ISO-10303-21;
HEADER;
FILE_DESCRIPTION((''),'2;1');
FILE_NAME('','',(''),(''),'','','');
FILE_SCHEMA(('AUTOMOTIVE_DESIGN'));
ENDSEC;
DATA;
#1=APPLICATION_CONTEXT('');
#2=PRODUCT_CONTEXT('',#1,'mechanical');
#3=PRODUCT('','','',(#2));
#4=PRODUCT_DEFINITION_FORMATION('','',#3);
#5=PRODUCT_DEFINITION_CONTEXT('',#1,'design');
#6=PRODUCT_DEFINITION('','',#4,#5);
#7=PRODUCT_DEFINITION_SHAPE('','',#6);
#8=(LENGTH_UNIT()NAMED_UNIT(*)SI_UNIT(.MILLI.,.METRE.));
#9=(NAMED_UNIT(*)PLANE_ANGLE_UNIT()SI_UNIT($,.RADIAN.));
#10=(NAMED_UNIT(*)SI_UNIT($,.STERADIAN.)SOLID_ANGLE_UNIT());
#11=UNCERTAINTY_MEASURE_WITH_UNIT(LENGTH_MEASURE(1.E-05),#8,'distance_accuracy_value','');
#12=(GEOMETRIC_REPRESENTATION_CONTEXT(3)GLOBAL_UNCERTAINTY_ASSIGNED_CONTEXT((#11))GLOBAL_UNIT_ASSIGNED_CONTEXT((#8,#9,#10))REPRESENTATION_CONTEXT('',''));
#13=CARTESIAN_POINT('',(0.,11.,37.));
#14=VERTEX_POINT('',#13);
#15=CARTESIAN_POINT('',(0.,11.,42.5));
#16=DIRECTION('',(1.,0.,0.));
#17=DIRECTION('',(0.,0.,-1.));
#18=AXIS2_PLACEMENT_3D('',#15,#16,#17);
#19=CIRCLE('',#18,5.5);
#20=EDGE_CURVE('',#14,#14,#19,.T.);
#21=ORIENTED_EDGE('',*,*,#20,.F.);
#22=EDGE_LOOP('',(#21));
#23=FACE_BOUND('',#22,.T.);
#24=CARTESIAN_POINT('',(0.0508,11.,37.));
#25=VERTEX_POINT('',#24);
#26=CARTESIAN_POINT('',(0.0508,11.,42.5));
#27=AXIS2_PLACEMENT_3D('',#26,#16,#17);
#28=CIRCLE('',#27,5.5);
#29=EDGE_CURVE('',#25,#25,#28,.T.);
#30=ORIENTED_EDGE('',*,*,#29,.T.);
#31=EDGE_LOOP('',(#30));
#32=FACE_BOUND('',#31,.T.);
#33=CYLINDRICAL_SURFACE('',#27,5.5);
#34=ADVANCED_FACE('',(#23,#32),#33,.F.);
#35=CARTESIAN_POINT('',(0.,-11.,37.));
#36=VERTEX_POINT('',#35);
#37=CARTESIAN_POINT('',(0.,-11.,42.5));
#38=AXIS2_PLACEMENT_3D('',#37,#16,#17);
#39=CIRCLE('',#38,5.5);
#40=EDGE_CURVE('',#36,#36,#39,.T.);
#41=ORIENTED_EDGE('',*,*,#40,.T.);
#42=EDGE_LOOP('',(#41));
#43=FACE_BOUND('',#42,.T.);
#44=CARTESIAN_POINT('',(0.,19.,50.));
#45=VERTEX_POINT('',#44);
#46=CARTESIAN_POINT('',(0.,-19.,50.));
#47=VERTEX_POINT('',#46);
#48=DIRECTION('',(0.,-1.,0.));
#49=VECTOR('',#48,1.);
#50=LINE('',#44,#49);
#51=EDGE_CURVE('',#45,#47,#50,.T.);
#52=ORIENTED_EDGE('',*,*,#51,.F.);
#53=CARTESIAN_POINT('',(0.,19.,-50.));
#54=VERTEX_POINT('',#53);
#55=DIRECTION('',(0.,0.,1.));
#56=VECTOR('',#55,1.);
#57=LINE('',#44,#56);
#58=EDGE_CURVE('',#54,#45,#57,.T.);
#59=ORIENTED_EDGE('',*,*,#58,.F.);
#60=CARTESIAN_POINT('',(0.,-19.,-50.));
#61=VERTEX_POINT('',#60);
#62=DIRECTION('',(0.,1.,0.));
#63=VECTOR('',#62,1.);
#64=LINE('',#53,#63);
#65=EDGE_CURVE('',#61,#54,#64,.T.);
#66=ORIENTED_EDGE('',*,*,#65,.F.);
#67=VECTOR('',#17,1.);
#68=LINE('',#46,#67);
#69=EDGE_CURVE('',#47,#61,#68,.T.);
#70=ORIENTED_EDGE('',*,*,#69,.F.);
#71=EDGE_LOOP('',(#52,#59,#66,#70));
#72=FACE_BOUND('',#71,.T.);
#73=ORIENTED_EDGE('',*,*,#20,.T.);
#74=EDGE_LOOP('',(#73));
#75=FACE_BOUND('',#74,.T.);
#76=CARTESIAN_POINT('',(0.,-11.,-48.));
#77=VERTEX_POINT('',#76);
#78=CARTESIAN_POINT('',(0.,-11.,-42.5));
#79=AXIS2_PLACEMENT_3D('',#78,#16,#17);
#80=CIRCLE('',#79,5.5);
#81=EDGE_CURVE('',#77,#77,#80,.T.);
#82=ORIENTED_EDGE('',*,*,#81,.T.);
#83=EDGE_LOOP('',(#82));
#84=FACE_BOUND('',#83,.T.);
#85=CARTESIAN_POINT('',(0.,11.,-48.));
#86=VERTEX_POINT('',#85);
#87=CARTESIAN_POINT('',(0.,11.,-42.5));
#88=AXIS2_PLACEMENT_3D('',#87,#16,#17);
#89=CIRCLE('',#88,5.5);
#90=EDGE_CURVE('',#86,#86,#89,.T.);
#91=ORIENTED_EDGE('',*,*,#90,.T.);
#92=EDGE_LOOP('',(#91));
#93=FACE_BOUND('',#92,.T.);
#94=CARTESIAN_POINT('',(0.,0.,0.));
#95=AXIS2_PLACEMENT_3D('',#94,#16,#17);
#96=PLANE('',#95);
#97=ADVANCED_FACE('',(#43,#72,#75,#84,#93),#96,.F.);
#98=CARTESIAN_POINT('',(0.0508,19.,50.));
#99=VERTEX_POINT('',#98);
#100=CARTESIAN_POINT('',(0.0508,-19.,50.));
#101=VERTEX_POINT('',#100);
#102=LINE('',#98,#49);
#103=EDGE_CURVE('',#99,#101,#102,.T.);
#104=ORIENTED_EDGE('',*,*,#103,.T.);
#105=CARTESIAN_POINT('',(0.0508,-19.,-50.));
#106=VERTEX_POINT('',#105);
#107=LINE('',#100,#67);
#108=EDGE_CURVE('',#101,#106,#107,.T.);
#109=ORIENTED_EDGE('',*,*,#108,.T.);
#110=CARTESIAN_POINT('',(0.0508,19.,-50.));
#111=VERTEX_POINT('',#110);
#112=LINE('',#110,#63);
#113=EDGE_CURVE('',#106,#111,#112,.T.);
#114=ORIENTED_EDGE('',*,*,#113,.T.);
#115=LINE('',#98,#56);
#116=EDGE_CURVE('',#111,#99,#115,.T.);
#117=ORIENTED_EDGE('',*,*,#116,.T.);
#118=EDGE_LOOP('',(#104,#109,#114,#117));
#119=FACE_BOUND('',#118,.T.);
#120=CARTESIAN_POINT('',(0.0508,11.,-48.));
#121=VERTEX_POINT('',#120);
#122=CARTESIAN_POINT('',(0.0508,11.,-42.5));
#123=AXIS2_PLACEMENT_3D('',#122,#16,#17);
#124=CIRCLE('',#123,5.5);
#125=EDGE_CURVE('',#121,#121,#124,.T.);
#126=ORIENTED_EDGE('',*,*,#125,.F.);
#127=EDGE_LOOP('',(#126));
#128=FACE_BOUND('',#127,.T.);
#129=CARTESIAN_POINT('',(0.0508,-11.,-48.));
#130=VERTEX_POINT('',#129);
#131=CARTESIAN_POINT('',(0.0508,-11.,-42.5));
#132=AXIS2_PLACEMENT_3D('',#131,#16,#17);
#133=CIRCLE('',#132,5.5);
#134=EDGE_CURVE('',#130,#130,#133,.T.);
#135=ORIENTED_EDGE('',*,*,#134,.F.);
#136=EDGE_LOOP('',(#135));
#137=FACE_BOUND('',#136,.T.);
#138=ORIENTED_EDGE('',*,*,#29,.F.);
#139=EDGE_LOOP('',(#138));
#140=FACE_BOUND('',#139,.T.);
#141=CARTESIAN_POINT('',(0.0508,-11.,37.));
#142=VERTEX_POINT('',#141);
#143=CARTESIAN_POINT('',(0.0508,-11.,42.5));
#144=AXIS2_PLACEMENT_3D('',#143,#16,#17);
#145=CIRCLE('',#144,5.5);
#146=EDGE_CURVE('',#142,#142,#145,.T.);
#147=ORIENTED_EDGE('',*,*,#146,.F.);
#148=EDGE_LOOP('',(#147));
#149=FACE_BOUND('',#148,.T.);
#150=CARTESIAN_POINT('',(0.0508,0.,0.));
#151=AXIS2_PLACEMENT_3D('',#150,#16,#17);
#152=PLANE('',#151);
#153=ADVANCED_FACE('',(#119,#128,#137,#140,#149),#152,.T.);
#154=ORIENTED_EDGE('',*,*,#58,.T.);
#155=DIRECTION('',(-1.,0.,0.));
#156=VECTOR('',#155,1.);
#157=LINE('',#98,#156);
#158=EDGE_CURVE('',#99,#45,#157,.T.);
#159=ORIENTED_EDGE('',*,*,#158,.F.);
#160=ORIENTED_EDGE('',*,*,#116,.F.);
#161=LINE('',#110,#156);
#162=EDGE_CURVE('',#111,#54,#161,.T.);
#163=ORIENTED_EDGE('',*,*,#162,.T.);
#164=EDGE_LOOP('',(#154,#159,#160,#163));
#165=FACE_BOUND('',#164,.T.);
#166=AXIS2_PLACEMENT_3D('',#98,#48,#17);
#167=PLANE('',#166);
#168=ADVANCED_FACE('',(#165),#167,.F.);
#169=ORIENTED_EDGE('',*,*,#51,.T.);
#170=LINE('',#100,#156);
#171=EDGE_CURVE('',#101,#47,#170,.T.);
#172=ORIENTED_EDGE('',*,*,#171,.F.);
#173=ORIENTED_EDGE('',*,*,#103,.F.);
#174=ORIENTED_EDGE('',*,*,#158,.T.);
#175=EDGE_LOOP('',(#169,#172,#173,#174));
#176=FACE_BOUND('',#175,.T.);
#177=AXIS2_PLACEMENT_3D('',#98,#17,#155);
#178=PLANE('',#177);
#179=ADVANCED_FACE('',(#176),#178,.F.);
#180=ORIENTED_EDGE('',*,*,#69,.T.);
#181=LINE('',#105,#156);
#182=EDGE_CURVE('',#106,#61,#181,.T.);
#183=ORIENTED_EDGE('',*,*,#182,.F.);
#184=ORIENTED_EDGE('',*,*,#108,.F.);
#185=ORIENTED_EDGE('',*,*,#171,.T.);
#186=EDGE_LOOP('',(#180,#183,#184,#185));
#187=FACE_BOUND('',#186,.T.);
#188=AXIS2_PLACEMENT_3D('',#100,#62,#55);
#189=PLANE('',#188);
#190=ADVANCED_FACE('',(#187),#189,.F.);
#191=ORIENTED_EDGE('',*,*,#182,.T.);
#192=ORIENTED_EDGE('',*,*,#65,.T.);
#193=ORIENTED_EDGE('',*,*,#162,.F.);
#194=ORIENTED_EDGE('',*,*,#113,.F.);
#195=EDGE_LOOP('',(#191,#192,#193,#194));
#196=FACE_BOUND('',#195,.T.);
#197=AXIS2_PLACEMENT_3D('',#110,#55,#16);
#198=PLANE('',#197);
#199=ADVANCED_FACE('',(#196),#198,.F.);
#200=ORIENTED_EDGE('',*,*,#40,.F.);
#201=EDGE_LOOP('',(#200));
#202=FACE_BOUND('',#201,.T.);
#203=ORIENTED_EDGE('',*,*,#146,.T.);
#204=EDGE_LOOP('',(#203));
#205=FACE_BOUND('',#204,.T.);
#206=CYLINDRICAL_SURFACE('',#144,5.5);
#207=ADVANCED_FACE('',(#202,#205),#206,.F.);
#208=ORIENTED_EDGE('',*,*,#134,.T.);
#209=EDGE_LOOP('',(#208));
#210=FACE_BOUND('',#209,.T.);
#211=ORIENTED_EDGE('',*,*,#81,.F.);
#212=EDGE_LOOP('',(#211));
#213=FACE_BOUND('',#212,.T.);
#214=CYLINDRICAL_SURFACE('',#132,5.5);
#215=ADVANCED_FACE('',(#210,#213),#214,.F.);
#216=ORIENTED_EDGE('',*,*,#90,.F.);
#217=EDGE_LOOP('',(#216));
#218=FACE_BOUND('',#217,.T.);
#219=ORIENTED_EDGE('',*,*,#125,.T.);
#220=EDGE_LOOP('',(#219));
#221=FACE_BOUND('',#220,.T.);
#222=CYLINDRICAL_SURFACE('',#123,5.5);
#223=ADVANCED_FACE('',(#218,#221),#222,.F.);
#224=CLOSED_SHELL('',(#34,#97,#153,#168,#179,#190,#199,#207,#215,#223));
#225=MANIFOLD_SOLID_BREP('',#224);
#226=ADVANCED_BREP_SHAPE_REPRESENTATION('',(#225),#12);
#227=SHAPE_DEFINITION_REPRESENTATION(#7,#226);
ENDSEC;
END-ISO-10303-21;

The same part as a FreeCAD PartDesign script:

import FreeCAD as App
import Part
import Sketcher

V = App.Vector


def add_polygon(sketch, points):
    """Adds a closed chain of lines whose ends are joined by coincident constraints."""
    first, n = sketch.GeometryCount, len(points)
    for a, b in zip(points, points[1:] + points[:1]):
        sketch.addGeometry(Part.LineSegment(App.Vector(*a, 0), App.Vector(*b, 0)), False)
    for i in range(n):
        sketch.addConstraint(Sketcher.Constraint("Coincident", first + i, 2, first + (i + 1) % n, 1))

doc = App.newDocument("Part")
params = doc.addObject("Spreadsheet::Sheet", "Params")
for row, (alias, value) in enumerate([
    ("sketch1_width", "38 mm"),
    ("sketch1_height", "100 mm"),
    ("pad1_length", "0.0508 mm"),
    ("sketch2_diameter", "11 mm"),
    ("hole_diameter", "11 mm"),
], start=1):
    params.set(f"A{row}", alias)
    params.set(f"B{row}", "=" + value)
    params.setAlias(f"B{row}", alias)

body = doc.addObject("PartDesign::Body", "Body")

# Sketch on YZ plane
sketch1 = body.newObject("Sketcher::SketchObject", "Sketch")
sketch1.AttachmentSupport = (doc.getObject("YZ_Plane"), [""])
sketch1.MapMode = "FlatFace"
add_polygon(sketch1, [(19, 50), (-19, 50), (-19, -50), (19, -50)])  # lines 0-3
sketch1.addConstraint([
    Sketcher.Constraint("Horizontal", 0),
    Sketcher.Constraint("Vertical", 1),
    Sketcher.Constraint("Horizontal", 2),
    Sketcher.Constraint("Vertical", 3),
    Sketcher.Constraint("Symmetric", 0, 2, 2, 2, -1, 1),
    Sketcher.Constraint("DistanceX", 0, 2, 0, 1, 38.0),
    Sketcher.Constraint("DistanceY", 1, 2, 1, 1, 100.0),
])
sketch1.setExpression("Constraints[9]", "Params.sketch1_width")
sketch1.setExpression("Constraints[10]", "Params.sketch1_height")
pad1 = body.newObject("PartDesign::Pad", "Pad")
pad1.Profile = sketch1
pad1.setExpression("Length", "Params.pad1_length")

# Sketch on YZ plane
sketch2 = body.newObject("Sketcher::SketchObject", "Sketch001")
sketch2.AttachmentSupport = (doc.getObject("YZ_Plane"), [""])
sketch2.MapMode = "FlatFace"
sketch2.AttachmentOffset = App.Placement(V(0, 0, 0.0508), App.Rotation())
sketch2.addGeometry([
    Part.Circle(V(11, 42.5, 0), V(0, 0, 1), 5.5),
    Part.Circle(V(-11, 42.5, 0), V(0, 0, 1), 5.5),
    Part.Circle(V(11, -42.5, 0), V(0, 0, 1), 5.5),
    Part.Circle(V(-11, -42.5, 0), V(0, 0, 1), 5.5),
], False)
sketch2.addConstraint([
    Sketcher.Constraint("Equal", 0, 1),
    Sketcher.Constraint("Equal", 1, 2),
    Sketcher.Constraint("Equal", 2, 3),
    Sketcher.Constraint("Symmetric", 1, 3, 2, 3, -1, 1),
    Sketcher.Constraint("Symmetric", 0, 3, 3, 3, -1, 1),
    Sketcher.Constraint("Symmetric", 0, 3, 1, 3, -2),
    Sketcher.Constraint("Diameter", 0, 11.0),
    Sketcher.Constraint("DistanceX", -1, 1, 0, 3, 11.0),
    Sketcher.Constraint("DistanceY", 2, 3, 0, 3, 85.0),
])
sketch2.setExpression("Constraints[6]", "Params.sketch2_diameter")
doc.recompute()
hole = body.newObject("PartDesign::Hole", "Hole")
hole.Profile = sketch2
hole.ThreadType = "None"
hole.setExpression("Diameter", "Params.hole_diameter")
hole.DepthType = "ThroughAll"

doc.recompute()
